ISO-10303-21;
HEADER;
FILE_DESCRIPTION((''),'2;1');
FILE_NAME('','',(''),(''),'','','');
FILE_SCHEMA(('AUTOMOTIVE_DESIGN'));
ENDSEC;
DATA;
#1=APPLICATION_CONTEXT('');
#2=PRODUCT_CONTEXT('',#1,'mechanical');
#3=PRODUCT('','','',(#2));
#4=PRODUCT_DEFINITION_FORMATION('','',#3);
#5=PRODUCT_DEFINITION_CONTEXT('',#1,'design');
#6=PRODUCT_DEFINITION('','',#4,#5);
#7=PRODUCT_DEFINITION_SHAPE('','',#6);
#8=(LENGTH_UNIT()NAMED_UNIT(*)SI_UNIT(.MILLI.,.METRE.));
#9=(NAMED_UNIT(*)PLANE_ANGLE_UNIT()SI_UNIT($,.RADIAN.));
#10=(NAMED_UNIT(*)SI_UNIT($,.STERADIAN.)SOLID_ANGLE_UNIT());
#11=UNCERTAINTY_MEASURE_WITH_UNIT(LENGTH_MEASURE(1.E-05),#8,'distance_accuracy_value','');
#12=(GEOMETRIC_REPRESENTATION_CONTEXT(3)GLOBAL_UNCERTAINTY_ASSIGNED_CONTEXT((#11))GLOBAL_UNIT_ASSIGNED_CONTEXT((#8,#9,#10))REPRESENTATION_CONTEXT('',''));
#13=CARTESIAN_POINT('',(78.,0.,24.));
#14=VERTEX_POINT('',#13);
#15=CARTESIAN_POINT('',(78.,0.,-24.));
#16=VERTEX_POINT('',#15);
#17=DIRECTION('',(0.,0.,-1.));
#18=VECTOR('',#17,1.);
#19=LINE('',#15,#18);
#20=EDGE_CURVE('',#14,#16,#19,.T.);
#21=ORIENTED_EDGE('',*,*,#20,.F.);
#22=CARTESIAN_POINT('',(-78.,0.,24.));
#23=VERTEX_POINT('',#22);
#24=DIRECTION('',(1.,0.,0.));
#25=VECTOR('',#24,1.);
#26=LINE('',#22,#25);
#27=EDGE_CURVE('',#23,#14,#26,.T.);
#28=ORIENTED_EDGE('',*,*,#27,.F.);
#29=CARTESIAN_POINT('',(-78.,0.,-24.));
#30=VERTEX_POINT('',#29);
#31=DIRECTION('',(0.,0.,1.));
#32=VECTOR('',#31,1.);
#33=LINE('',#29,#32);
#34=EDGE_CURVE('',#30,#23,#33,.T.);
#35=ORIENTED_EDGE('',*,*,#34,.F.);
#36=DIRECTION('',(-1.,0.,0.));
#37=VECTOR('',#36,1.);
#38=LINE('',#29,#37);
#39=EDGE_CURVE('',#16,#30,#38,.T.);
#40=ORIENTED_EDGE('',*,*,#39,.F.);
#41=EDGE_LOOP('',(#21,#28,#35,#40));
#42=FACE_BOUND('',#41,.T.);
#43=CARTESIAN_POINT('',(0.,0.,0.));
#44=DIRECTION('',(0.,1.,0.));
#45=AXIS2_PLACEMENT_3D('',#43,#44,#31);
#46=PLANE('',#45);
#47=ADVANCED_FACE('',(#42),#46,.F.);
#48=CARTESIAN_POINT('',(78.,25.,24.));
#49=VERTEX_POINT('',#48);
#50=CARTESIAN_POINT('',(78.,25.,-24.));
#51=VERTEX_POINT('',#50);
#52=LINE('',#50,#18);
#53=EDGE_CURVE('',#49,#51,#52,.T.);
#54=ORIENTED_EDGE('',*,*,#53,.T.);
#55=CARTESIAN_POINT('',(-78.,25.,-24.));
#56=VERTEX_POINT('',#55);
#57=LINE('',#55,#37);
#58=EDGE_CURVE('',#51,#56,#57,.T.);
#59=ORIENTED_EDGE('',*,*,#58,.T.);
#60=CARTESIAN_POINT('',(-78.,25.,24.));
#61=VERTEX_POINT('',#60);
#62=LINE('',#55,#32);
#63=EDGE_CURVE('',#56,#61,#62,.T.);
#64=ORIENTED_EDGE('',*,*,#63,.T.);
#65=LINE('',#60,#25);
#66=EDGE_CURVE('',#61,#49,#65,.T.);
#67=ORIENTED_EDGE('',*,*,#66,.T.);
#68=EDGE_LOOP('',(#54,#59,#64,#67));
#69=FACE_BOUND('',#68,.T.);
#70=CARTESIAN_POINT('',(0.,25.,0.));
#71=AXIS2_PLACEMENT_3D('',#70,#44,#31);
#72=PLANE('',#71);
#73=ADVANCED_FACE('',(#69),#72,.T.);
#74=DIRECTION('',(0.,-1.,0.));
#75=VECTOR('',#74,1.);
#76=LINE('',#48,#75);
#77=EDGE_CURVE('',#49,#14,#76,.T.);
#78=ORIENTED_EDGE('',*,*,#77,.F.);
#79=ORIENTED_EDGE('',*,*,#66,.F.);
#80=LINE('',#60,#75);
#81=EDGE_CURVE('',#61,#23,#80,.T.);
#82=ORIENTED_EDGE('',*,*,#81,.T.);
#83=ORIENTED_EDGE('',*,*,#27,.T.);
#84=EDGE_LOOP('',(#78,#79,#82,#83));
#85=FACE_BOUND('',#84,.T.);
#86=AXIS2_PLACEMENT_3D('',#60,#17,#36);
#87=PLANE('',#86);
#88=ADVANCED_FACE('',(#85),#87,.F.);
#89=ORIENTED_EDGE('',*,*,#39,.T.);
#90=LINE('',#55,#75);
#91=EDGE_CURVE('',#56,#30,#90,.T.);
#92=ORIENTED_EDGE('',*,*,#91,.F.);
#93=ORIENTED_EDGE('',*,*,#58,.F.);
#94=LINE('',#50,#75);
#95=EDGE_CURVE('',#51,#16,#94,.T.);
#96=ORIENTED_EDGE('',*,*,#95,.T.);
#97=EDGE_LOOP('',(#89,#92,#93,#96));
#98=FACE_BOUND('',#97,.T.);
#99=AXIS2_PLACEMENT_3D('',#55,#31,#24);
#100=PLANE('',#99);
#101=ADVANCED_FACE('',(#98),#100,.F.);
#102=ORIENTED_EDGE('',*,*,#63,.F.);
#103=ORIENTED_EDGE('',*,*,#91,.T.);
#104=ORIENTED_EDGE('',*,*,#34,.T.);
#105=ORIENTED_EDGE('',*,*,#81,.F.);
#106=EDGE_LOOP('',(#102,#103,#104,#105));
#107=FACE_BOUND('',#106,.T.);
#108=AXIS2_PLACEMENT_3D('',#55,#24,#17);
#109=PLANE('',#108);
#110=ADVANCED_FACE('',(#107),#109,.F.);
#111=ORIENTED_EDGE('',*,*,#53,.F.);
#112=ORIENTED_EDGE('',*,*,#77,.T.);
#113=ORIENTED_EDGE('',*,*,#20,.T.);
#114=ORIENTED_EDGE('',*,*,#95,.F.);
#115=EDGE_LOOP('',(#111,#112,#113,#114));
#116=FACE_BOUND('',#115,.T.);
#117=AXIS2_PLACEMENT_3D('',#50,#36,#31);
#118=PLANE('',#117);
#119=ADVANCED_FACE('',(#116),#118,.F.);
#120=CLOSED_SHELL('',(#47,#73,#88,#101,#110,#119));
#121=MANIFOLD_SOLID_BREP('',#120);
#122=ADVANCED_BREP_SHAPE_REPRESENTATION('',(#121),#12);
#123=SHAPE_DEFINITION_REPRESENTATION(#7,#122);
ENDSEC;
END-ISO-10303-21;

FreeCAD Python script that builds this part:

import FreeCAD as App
import Part
import Sketcher


def add_polygon(sketch, points):
    """Adds a closed chain of lines whose ends are joined by coincident constraints."""
    first, n = sketch.GeometryCount, len(points)
    for a, b in zip(points, points[1:] + points[:1]):
        sketch.addGeometry(Part.LineSegment(App.Vector(*a, 0), App.Vector(*b, 0)), False)
    for i in range(n):
        sketch.addConstraint(Sketcher.Constraint("Coincident", first + i, 2, first + (i + 1) % n, 1))

doc = App.newDocument("Part")
body = doc.addObject("PartDesign::Body", "Body")

sketch1 = body.newObject("Sketcher::SketchObject", "Sketch")
sketch1.AttachmentSupport = (doc.getObject("XZ_Plane"), [""])
sketch1.MapMode = "FlatFace"
add_polygon(sketch1, [(-78, -24), (-78, 24), (78, 24), (78, -24)])
sketch1.addConstraint(Sketcher.Constraint("Vertical", 0))
sketch1.addConstraint(Sketcher.Constraint("Horizontal", 1))
sketch1.addConstraint(Sketcher.Constraint("Vertical", 2))
sketch1.addConstraint(Sketcher.Constraint("Horizontal", 3))
sketch1.addConstraint(Sketcher.Constraint("Symmetric", 0, 2, 2, 2, -1, 1))
sketch1.addConstraint(Sketcher.Constraint("DistanceX", 1, 1, 1, 2, 156.0))
sketch1.addConstraint(Sketcher.Constraint("DistanceY", 0, 1, 0, 2, 48.0))
pad1 = body.newObject("PartDesign::Pad", "Pad")
pad1.Profile = sketch1
pad1.Length = 25
pad1.Reversed = True

doc.recompute()
